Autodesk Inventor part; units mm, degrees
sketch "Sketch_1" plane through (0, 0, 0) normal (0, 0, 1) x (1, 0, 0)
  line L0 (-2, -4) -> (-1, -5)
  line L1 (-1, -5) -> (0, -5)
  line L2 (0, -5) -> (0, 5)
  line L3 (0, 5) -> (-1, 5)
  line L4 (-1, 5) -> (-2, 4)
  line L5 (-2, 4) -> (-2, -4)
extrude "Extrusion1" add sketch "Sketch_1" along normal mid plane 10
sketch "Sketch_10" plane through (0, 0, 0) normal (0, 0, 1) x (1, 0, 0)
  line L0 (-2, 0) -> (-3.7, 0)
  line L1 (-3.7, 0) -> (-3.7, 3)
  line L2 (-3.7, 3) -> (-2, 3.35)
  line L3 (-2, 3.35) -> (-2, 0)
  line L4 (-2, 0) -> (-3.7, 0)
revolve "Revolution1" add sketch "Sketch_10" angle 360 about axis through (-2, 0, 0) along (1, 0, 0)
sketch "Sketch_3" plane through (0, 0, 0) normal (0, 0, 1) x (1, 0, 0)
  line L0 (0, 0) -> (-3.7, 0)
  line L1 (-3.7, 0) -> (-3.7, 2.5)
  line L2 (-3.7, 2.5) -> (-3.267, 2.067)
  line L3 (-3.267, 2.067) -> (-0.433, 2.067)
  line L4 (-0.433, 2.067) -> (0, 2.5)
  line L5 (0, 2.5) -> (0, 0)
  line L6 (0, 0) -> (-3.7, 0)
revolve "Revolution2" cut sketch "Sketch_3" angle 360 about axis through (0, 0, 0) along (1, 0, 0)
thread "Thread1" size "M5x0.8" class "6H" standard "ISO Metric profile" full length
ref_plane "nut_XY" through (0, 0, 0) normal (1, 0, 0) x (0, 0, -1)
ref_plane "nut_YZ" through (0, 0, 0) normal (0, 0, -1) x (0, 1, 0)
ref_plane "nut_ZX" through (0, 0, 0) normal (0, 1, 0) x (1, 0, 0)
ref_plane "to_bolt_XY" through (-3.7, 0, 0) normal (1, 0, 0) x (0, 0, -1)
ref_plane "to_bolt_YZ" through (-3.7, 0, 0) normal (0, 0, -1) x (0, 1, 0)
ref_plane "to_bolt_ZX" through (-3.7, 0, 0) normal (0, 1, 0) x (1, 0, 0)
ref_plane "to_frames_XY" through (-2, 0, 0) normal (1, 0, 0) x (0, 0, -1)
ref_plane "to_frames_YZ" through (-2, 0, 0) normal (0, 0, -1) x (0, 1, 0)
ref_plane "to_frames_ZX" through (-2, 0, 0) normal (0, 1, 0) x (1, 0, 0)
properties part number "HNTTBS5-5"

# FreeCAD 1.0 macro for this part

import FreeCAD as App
import Part
import Sketcher
Q = App.Units.Quantity


def add_polygon(sketch, points):
    """Adds a closed chain of lines whose ends are joined by coincident constraints."""
    first, n = sketch.GeometryCount, len(points)
    for a, b in zip(points, points[1:] + points[:1]):
        sketch.addGeometry(Part.LineSegment(App.Vector(*a, 0), App.Vector(*b, 0)), False)
    for i in range(n):
        sketch.addConstraint(Sketcher.Constraint("Coincident", first + i, 2, first + (i + 1) % n, 1))

doc = App.newDocument("Part")
body = doc.addObject("PartDesign::Body", "Body")

sketch1 = doc.addObject("Sketcher::SketchObject", "Sketch")
body.addObject(sketch1)
sketch1.AttachmentSupport = (doc.XY_Plane, [""])
sketch1.MapMode = "FlatFace"
add_polygon(sketch1, [(-2, 4), (-2, -4), (-1, -5), (0, -5), (0, 5), (-1, 5)])
sketch1.addConstraint([
    Sketcher.Constraint("Vertical", 0),
    Sketcher.Constraint("Horizontal", 2),
    Sketcher.Constraint("Vertical", 3),
    Sketcher.Constraint("Horizontal", 4),
    Sketcher.Constraint("Symmetric", 2, 2, 3, 2, -1, 1),
    Sketcher.Constraint("Perpendicular", 1, 5),
    Sketcher.Constraint("Vertical", 1, 2, 4, 2),
    Sketcher.Constraint("Equal", 1, 5),
    Sketcher.Constraint("DistanceX", 2, 1, 2, 2, Q("1 mm")),
    Sketcher.Constraint("DistanceY", 0, 2, 0, 1, Q("8 mm")),
    Sketcher.Constraint("DistanceY", 3, 1, 3, 2, Q("10 mm")),
])
pad1 = doc.addObject("PartDesign::Pad", "Pad")
body.addObject(pad1)
pad1.Profile = sketch1
pad1.Length = 10
pad1.Midplane = True

sketch2 = doc.addObject("Sketcher::SketchObject", "Sketch001")
body.addObject(sketch2)
sketch2.AttachmentSupport = (doc.XY_Plane, [""])
sketch2.MapMode = "FlatFace"
add_polygon(sketch2, [(-3.7, 0), (-2, 0), (-2, 3.4), (-3.7, 3)])
sketch2.addConstraint([
    Sketcher.Constraint("Horizontal", 0),
    Sketcher.Constraint("Vertical", 1),
    Sketcher.Constraint("Vertical", 3),
    Sketcher.Constraint("PointOnObject", 0, 2, -1),
    Sketcher.Constraint("DistanceY", 3, 2, 3, 1, Q("3 mm")),
    Sketcher.Constraint("DistanceX", 0, 1, 0, 2, Q("1.7 mm")),
    Sketcher.Constraint("DistanceX", 0, 2, -1, 1, Q("2 mm")),
    Sketcher.Constraint("DistanceY", 1, 1, 1, 2, Q("3.35 mm")),
])
revolution = doc.addObject("PartDesign::Revolution", "Revolution")
body.addObject(revolution)
revolution.Profile = sketch2
revolution.ReferenceAxis = (sketch2, ["H_Axis"])
revolution.Angle = 360

sketch3 = doc.addObject("Sketcher::SketchObject", "Sketch002")
body.addObject(sketch3)
sketch3.AttachmentSupport = (doc.XY_Plane, [""])
sketch3.MapMode = "FlatFace"
add_polygon(sketch3, [(-3.7, 0), (0, 0), (0, 2.5), (-0.4, 2.1), (-3.3, 2.1), (-3.7, 2.5)])
sketch3.addConstraint([
    Sketcher.Constraint("Horizontal", 0),
    Sketcher.Constraint("Vertical", 1),
    Sketcher.Constraint("Horizontal", 3),
    Sketcher.Constraint("Vertical", 5),
    Sketcher.Constraint("Coincident", 0, 2, -1, 1),
    Sketcher.Constraint("Perpendicular", 2, 4),
    Sketcher.Constraint("Horizontal", 1, 2, 4, 2),
    Sketcher.Constraint("Equal", 2, 4),
    Sketcher.Constraint("DistanceX", 0, 1, 0, 2, Q("3.7 mm")),
    Sketcher.Constraint("DistanceY", 1, 1, 1, 2, Q("2.5 mm")),
    Sketcher.Constraint("DistanceX", 3, 2, 3, 1, Q("2.834 mm")),
])
groove = doc.addObject("PartDesign::Groove", "Groove")
body.addObject(groove)
groove.Profile = sketch3
groove.ReferenceAxis = (sketch3, ["H_Axis"])
groove.Angle = 360

doc.recompute()
